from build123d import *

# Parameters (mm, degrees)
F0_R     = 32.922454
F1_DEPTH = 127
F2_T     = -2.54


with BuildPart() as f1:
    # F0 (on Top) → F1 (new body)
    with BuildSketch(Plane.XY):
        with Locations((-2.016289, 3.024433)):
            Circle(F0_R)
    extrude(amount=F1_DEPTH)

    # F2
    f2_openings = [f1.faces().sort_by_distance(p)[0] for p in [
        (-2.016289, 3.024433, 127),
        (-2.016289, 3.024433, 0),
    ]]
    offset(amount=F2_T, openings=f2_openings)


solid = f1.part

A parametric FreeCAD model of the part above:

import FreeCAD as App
import Part
import Sketcher
from FreeCAD import Vector
Q = App.Units.Quantity


def faces_at(feature, points):
    """Names of the faces that lie closest to the given points."""
    faces = feature.Shape.Faces
    near = lambda p: min(range(len(faces)), key=lambda i: faces[i].distToShape(Part.Vertex(*p))[0])
    return sorted({f"Face{near(p) + 1}" for p in points})

doc = App.newDocument("Part")
params = doc.addObject("Spreadsheet::Sheet", "Params")
for row, (alias, value) in enumerate([
    ("pad1_length", "5 in"),
    ("thickness_wall", "0.1 in"),
], start=1):
    params.set(f"A{row}", alias)
    params.set(f"B{row}", "=" + value)
    params.setAlias(f"B{row}", alias)

body = doc.addObject("PartDesign::Body", "Body")

# Sketch on XY plane
sketch1 = body.newObject("Sketcher::SketchObject", "Sketch")
sketch1.AttachmentSupport = (doc.getObject("XY_Plane"), [""])
sketch1.MapMode = "FlatFace"
sketch1.addGeometry(Part.Circle(Vector(-2, 3, 0), Vector(0, 0, 1), 33), False)
sketch1.addConstraint(Sketcher.Constraint("Diameter", 0, Q("65.844908 mm")))
sketch1.addConstraint(Sketcher.Constraint("DistanceX", 0, 3, -1, 1, Q("2.016289 mm")))
sketch1.addConstraint(Sketcher.Constraint("DistanceY", -1, 1, 0, 3, Q("3.024433 mm")))
pad1 = body.newObject("PartDesign::Pad", "Pad")
pad1.Profile = sketch1
pad1.setExpression("Length", "Params.pad1_length")
doc.recompute()

thickness = body.newObject("PartDesign::Thickness", "Thickness")
thickness.Base = (pad1, faces_at(pad1, [(-2.016, 3.024, 127), (-2.016, 3.024, 0)]))
thickness.setExpression("Value", "Params.thickness_wall")
thickness.Reversed = True
thickness.Join = "Arc"

doc.recompute()
